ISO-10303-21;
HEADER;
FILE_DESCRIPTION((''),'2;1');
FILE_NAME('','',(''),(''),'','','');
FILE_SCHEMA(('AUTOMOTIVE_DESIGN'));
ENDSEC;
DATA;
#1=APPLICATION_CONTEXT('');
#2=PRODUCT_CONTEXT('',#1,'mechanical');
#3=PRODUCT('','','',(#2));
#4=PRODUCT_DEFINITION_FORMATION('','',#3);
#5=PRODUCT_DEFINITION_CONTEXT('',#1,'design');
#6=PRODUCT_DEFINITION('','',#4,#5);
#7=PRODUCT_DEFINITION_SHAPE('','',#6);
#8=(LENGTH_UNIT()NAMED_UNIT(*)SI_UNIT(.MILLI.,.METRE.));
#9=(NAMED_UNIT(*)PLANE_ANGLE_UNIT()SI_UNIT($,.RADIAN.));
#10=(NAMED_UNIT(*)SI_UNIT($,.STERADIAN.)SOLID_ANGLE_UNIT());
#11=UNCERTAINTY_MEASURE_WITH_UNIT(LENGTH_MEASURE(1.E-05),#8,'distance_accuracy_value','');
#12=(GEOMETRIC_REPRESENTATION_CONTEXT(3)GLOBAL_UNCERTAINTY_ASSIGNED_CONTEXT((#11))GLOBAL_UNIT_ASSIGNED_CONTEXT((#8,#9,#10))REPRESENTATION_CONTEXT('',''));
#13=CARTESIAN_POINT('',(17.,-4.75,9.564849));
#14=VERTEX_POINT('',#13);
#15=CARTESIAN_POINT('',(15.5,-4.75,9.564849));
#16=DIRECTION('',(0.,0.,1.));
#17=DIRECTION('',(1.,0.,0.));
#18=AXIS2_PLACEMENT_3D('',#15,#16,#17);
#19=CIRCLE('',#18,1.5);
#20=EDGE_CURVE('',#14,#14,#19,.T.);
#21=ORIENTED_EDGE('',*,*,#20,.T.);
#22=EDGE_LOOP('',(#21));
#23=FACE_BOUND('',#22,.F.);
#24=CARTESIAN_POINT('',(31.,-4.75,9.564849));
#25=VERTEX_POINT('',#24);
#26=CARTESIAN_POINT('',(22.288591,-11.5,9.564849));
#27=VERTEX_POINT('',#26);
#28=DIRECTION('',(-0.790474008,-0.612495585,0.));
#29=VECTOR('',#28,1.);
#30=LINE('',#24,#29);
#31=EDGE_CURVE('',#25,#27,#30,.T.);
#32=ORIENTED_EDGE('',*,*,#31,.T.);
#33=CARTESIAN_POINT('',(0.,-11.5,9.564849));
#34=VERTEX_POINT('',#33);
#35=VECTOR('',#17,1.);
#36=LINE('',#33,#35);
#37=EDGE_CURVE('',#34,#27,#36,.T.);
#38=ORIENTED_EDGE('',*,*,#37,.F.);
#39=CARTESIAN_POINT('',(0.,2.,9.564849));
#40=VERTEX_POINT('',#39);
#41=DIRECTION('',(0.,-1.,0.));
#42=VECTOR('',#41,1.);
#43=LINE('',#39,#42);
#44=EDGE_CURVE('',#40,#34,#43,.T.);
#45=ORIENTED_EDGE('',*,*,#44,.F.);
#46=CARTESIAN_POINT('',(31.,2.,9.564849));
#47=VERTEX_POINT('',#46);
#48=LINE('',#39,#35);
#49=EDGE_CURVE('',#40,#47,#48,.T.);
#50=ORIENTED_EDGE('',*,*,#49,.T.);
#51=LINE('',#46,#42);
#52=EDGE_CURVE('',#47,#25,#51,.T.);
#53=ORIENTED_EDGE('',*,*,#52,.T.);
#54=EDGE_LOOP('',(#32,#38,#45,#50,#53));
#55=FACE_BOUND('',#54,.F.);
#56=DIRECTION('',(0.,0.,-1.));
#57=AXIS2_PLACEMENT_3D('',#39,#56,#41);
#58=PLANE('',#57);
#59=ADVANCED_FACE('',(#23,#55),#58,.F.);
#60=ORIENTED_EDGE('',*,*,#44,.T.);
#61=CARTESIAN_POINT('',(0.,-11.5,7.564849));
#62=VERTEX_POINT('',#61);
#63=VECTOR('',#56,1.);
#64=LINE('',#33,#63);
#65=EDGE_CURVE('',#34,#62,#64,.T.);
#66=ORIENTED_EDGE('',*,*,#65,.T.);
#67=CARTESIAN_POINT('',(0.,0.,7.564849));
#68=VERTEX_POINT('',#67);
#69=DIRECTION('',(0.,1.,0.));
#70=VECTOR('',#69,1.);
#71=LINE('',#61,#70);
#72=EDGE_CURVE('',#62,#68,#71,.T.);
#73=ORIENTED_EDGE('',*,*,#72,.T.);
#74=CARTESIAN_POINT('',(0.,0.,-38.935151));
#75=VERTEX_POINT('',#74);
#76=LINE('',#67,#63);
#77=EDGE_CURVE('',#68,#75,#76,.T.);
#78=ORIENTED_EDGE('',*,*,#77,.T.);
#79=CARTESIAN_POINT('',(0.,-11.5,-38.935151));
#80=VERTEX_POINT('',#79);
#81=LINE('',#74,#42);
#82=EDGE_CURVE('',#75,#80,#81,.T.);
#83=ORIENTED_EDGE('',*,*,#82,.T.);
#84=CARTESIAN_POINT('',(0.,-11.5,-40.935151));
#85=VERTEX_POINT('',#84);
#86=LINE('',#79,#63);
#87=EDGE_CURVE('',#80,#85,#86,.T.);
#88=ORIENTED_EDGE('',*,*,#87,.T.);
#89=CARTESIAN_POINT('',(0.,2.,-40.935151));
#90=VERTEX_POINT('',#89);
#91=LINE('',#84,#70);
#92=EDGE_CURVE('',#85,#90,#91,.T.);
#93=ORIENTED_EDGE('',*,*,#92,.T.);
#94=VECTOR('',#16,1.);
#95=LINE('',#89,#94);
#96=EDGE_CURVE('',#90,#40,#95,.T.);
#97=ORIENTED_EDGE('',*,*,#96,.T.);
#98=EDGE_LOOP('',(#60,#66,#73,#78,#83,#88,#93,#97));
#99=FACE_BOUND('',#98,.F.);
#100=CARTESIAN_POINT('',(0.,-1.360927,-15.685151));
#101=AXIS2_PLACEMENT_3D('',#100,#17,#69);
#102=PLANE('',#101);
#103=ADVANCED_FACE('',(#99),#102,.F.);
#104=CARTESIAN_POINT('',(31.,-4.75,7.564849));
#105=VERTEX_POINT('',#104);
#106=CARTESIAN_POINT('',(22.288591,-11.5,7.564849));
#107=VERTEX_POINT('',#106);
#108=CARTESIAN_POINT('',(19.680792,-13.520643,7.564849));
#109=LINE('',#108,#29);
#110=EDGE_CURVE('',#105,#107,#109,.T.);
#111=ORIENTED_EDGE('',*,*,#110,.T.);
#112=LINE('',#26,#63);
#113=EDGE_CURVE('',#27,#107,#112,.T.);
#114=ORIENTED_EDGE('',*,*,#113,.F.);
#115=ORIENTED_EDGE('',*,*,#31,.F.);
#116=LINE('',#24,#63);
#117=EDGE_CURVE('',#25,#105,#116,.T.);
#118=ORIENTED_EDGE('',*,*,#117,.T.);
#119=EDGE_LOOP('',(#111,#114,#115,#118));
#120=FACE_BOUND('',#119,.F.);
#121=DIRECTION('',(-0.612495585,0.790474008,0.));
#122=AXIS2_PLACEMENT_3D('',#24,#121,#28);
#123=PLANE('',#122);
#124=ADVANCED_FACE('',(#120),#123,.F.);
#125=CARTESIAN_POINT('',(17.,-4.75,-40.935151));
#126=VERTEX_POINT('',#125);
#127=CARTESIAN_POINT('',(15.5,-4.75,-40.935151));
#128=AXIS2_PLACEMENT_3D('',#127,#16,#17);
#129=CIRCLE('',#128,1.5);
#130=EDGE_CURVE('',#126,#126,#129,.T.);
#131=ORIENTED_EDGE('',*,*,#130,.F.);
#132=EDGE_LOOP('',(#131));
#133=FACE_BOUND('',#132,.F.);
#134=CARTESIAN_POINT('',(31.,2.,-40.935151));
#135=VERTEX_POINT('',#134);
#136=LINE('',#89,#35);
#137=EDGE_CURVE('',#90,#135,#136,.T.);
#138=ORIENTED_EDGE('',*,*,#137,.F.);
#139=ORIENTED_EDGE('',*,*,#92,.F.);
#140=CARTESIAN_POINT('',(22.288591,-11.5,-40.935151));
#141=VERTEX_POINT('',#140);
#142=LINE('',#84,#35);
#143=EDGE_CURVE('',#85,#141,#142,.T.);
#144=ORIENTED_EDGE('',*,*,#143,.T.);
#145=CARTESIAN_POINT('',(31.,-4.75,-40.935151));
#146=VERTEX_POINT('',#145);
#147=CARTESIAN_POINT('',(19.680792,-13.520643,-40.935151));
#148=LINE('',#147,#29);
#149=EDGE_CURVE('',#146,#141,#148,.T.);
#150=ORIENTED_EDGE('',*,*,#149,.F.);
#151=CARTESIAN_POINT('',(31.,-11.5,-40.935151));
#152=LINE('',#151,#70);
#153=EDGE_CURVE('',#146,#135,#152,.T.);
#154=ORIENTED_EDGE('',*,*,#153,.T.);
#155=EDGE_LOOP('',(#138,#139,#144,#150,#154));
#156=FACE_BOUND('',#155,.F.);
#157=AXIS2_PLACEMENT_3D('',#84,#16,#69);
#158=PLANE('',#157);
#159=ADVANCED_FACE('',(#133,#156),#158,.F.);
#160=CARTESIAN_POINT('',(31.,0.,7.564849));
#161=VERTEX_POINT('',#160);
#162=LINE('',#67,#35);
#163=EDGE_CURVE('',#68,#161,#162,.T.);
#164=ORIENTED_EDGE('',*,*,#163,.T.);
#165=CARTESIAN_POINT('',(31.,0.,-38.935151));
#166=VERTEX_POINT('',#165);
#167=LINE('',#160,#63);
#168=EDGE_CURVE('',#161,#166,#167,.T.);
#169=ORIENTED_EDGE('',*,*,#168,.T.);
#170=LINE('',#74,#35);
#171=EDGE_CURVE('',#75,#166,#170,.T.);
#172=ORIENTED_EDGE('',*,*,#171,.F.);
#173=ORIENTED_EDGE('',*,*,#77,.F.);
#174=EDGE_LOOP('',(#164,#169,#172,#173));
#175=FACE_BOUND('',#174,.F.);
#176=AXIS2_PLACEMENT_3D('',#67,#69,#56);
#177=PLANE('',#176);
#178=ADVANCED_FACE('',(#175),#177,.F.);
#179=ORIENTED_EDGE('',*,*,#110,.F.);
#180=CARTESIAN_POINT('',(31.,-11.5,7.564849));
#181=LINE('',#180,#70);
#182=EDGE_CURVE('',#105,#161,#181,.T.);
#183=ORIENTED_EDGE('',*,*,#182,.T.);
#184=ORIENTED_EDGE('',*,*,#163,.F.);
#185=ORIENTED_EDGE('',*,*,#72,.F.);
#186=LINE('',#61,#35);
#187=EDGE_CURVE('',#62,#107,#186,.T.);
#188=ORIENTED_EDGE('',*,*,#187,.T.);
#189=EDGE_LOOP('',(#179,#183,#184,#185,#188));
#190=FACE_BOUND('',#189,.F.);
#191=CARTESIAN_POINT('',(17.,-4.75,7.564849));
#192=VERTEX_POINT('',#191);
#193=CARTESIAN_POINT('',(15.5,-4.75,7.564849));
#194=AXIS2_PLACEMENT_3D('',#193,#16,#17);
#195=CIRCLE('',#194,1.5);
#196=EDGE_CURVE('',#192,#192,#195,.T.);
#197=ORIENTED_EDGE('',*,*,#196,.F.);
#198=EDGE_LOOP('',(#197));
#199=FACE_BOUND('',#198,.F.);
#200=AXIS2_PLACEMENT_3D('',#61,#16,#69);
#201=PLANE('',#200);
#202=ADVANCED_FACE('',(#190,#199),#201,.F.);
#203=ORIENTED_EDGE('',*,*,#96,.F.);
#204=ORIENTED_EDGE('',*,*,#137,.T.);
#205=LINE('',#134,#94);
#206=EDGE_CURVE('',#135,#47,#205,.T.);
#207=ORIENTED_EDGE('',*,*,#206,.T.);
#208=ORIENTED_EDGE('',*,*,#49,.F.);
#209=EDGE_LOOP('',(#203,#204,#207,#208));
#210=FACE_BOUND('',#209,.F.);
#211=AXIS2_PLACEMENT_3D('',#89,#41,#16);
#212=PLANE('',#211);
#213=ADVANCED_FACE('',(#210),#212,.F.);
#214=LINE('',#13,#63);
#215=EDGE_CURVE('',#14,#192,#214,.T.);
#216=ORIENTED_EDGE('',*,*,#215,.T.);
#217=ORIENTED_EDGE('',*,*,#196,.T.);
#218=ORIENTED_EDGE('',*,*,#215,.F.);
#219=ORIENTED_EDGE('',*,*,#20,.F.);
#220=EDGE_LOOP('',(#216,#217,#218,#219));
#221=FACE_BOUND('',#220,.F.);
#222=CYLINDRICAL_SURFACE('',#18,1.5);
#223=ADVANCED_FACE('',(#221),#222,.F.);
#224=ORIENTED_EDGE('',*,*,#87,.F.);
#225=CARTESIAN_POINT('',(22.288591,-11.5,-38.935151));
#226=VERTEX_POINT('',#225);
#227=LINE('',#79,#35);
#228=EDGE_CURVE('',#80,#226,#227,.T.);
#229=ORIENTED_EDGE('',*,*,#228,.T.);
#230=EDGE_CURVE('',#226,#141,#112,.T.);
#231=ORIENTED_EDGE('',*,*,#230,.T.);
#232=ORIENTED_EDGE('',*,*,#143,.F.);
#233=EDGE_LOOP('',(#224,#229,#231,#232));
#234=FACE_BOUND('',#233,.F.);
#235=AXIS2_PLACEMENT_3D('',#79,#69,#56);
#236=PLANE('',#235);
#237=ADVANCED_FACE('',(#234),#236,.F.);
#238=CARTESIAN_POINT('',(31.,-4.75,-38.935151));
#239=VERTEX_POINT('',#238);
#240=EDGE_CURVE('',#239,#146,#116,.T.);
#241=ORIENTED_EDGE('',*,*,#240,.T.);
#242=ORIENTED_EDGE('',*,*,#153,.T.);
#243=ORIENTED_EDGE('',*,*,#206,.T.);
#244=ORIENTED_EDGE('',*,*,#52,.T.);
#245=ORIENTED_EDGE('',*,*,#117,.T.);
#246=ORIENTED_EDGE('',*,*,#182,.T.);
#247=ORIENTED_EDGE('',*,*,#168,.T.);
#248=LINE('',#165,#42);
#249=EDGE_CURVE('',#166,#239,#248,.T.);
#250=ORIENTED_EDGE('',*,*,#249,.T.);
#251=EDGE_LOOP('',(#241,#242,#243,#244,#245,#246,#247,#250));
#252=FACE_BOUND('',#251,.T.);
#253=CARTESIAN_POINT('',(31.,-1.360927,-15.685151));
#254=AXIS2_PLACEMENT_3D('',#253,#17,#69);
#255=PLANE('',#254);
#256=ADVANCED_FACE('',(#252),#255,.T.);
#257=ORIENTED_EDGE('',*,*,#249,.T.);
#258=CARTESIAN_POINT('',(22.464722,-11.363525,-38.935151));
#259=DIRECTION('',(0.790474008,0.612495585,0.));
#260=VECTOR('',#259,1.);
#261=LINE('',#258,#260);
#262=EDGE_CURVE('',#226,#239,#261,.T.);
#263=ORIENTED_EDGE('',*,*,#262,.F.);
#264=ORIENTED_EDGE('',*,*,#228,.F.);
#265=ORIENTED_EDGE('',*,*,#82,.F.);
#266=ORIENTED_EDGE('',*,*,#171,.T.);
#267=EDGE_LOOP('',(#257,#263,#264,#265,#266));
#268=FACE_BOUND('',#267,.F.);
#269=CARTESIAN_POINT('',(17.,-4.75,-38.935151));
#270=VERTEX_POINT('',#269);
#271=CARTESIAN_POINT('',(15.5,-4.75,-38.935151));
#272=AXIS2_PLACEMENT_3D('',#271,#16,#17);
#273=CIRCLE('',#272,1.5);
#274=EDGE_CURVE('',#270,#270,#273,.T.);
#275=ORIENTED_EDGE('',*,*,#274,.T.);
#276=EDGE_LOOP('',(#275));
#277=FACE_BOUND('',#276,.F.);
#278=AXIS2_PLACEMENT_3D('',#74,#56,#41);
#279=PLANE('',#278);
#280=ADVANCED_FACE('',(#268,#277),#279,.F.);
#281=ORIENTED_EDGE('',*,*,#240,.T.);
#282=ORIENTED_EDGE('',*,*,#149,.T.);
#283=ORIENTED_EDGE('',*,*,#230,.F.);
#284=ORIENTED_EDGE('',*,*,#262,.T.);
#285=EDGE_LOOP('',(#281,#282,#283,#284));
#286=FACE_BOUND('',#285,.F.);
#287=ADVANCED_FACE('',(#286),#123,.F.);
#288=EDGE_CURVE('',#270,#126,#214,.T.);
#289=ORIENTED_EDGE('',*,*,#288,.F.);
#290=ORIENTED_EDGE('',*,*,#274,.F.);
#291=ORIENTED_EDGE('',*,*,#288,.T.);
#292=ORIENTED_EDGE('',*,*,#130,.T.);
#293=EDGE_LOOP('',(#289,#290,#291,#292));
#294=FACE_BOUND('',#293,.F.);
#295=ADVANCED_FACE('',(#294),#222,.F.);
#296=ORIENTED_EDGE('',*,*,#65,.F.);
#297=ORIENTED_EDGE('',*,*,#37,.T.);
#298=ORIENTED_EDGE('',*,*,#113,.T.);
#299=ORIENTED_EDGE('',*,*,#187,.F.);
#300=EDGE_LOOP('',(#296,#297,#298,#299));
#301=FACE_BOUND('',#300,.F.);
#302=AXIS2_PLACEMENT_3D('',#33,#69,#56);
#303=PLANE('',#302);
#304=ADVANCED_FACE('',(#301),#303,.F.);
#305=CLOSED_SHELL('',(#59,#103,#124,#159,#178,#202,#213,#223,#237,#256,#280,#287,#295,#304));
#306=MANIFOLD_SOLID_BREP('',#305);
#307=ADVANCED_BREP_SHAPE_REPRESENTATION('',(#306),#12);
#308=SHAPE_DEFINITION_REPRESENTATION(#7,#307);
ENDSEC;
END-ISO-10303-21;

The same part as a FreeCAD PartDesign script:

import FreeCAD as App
import Part
import Sketcher
from FreeCAD import Vector
Q = App.Units.Quantity

doc = App.newDocument("Part")
body = doc.addObject("PartDesign::Body", "Body")

# Sketch on YZ plane
sketch1 = body.newObject("Sketcher::SketchObject", "Sketch")
sketch1.AttachmentSupport = (doc.getObject("YZ_Plane"), [""])
sketch1.MapMode = "FlatFace"
sketch1.addGeometry([
    Part.LineSegment(Vector(-11.5, 7.6, 0), Vector(0, 7.6, 0)),  # 0
    Part.LineSegment(Vector(0, 7.6, 0), Vector(0, -38.9, 0)),  # 1
    Part.LineSegment(Vector(0, -38.9, 0), Vector(-11.5, -38.9, 0)),  # 2
    Part.LineSegment(Vector(-11.5, -38.9, 0), Vector(-11.5, -40.9, 0)),  # 3
    Part.LineSegment(Vector(-11.5, -40.9, 0), Vector(2, -40.9, 0)),  # 4
    Part.LineSegment(Vector(2, -40.9, 0), Vector(2, 9.6, 0)),  # 5
    Part.LineSegment(Vector(2, 9.6, 0), Vector(-11.5, 9.6, 0)),  # 6
    Part.LineSegment(Vector(-11.5, 9.6, 0), Vector(-11.5, 7.6, 0)),  # 7
], False)
sketch1.addConstraint([
    Sketcher.Constraint("Coincident", 0, 2, 1, 1),
    Sketcher.Constraint("Coincident", 1, 2, 2, 1),
    Sketcher.Constraint("Coincident", 2, 2, 3, 1),
    Sketcher.Constraint("Coincident", 3, 2, 4, 1),
    Sketcher.Constraint("Coincident", 4, 2, 5, 1),
    Sketcher.Constraint("Coincident", 5, 2, 6, 1),
    Sketcher.Constraint("Coincident", 6, 2, 7, 1),
    Sketcher.Constraint("Coincident", 7, 2, 0, 1),
    Sketcher.Constraint("Horizontal", 0),
    Sketcher.Constraint("Vertical", 1),
    Sketcher.Constraint("Horizontal", 2),
    Sketcher.Constraint("Vertical", 3),
    Sketcher.Constraint("Horizontal", 4),
    Sketcher.Constraint("Vertical", 5),
    Sketcher.Constraint("Horizontal", 6),
    Sketcher.Constraint("Vertical", 7),
    Sketcher.Constraint("PointOnObject", 0, 2, -2),
    Sketcher.Constraint("Vertical", 3, 2, 6, 2),
    Sketcher.Constraint("Equal", 3, 7),
    Sketcher.Constraint("DistanceY", 3, 2, 3, 1, Q("2 mm")),
    Sketcher.Constraint("DistanceX", 0, 1, 0, 2, Q("11.5 mm")),
    Sketcher.Constraint("DistanceX", 4, 1, 4, 2, Q("13.5 mm")),
    Sketcher.Constraint("DistanceY", 1, 2, 1, 1, Q("46.5 mm")),
    Sketcher.Constraint("DistanceY", -1, 1, 0, 2, Q("7.564849 mm")),
])
pad1 = body.newObject("PartDesign::Pad", "Pad")
pad1.Profile = sketch1
pad1.Length = 31

# Sketch on XY plane
sketch2 = body.newObject("Sketcher::SketchObject", "Sketch001")
sketch2.AttachmentSupport = (doc.getObject("XY_Plane"), [""])
sketch2.MapMode = "FlatFace"
sketch2.AttachmentOffset = App.Placement(Vector(0, 0, 9.564849), App.Rotation())
sketch2.addGeometry([
    Part.Circle(Vector(15.5, -4.8, 0), Vector(0, 0, 1), 1.5),
    Part.LineSegment(Vector(22.3, -11.5, 0), Vector(31, -11.5, 0)),
    Part.LineSegment(Vector(31, -11.5, 0), Vector(31, -4.8, 0)),
    Part.LineSegment(Vector(31, -4.8, 0), Vector(22.3, -11.5, 0)),
], False)
sketch2.addConstraint([
    Sketcher.Constraint("Coincident", 1, 2, 2, 1),
    Sketcher.Constraint("Coincident", 2, 2, 3, 1),
    Sketcher.Constraint("Coincident", 3, 2, 1, 1),
    Sketcher.Constraint("Horizontal", 1),
    Sketcher.Constraint("Vertical", 2),
    Sketcher.Constraint("Horizontal", 0, 3, 2, 2),
    Sketcher.Constraint("Diameter", 0, Q("3 mm")),
    Sketcher.Constraint("DistanceX", -1, 1, 1, 2, Q("31 mm")),
    Sketcher.Constraint("DistanceY", 2, 1, 2, 2, Q("6.75 mm")),
    Sketcher.Constraint("DistanceX", -1, 1, 0, 3, Q("15.5 mm")),
    Sketcher.Constraint("DistanceY", 1, 2, -1, 1, Q("11.5 mm")),
    Sketcher.Constraint("DistanceX", 1, 1, 1, 2, Q("8.711409 mm")),
])
pocket1 = body.newObject("PartDesign::Pocket", "Pocket")
pocket1.Profile = sketch2
pocket1.Length = 77

doc.recompute()
